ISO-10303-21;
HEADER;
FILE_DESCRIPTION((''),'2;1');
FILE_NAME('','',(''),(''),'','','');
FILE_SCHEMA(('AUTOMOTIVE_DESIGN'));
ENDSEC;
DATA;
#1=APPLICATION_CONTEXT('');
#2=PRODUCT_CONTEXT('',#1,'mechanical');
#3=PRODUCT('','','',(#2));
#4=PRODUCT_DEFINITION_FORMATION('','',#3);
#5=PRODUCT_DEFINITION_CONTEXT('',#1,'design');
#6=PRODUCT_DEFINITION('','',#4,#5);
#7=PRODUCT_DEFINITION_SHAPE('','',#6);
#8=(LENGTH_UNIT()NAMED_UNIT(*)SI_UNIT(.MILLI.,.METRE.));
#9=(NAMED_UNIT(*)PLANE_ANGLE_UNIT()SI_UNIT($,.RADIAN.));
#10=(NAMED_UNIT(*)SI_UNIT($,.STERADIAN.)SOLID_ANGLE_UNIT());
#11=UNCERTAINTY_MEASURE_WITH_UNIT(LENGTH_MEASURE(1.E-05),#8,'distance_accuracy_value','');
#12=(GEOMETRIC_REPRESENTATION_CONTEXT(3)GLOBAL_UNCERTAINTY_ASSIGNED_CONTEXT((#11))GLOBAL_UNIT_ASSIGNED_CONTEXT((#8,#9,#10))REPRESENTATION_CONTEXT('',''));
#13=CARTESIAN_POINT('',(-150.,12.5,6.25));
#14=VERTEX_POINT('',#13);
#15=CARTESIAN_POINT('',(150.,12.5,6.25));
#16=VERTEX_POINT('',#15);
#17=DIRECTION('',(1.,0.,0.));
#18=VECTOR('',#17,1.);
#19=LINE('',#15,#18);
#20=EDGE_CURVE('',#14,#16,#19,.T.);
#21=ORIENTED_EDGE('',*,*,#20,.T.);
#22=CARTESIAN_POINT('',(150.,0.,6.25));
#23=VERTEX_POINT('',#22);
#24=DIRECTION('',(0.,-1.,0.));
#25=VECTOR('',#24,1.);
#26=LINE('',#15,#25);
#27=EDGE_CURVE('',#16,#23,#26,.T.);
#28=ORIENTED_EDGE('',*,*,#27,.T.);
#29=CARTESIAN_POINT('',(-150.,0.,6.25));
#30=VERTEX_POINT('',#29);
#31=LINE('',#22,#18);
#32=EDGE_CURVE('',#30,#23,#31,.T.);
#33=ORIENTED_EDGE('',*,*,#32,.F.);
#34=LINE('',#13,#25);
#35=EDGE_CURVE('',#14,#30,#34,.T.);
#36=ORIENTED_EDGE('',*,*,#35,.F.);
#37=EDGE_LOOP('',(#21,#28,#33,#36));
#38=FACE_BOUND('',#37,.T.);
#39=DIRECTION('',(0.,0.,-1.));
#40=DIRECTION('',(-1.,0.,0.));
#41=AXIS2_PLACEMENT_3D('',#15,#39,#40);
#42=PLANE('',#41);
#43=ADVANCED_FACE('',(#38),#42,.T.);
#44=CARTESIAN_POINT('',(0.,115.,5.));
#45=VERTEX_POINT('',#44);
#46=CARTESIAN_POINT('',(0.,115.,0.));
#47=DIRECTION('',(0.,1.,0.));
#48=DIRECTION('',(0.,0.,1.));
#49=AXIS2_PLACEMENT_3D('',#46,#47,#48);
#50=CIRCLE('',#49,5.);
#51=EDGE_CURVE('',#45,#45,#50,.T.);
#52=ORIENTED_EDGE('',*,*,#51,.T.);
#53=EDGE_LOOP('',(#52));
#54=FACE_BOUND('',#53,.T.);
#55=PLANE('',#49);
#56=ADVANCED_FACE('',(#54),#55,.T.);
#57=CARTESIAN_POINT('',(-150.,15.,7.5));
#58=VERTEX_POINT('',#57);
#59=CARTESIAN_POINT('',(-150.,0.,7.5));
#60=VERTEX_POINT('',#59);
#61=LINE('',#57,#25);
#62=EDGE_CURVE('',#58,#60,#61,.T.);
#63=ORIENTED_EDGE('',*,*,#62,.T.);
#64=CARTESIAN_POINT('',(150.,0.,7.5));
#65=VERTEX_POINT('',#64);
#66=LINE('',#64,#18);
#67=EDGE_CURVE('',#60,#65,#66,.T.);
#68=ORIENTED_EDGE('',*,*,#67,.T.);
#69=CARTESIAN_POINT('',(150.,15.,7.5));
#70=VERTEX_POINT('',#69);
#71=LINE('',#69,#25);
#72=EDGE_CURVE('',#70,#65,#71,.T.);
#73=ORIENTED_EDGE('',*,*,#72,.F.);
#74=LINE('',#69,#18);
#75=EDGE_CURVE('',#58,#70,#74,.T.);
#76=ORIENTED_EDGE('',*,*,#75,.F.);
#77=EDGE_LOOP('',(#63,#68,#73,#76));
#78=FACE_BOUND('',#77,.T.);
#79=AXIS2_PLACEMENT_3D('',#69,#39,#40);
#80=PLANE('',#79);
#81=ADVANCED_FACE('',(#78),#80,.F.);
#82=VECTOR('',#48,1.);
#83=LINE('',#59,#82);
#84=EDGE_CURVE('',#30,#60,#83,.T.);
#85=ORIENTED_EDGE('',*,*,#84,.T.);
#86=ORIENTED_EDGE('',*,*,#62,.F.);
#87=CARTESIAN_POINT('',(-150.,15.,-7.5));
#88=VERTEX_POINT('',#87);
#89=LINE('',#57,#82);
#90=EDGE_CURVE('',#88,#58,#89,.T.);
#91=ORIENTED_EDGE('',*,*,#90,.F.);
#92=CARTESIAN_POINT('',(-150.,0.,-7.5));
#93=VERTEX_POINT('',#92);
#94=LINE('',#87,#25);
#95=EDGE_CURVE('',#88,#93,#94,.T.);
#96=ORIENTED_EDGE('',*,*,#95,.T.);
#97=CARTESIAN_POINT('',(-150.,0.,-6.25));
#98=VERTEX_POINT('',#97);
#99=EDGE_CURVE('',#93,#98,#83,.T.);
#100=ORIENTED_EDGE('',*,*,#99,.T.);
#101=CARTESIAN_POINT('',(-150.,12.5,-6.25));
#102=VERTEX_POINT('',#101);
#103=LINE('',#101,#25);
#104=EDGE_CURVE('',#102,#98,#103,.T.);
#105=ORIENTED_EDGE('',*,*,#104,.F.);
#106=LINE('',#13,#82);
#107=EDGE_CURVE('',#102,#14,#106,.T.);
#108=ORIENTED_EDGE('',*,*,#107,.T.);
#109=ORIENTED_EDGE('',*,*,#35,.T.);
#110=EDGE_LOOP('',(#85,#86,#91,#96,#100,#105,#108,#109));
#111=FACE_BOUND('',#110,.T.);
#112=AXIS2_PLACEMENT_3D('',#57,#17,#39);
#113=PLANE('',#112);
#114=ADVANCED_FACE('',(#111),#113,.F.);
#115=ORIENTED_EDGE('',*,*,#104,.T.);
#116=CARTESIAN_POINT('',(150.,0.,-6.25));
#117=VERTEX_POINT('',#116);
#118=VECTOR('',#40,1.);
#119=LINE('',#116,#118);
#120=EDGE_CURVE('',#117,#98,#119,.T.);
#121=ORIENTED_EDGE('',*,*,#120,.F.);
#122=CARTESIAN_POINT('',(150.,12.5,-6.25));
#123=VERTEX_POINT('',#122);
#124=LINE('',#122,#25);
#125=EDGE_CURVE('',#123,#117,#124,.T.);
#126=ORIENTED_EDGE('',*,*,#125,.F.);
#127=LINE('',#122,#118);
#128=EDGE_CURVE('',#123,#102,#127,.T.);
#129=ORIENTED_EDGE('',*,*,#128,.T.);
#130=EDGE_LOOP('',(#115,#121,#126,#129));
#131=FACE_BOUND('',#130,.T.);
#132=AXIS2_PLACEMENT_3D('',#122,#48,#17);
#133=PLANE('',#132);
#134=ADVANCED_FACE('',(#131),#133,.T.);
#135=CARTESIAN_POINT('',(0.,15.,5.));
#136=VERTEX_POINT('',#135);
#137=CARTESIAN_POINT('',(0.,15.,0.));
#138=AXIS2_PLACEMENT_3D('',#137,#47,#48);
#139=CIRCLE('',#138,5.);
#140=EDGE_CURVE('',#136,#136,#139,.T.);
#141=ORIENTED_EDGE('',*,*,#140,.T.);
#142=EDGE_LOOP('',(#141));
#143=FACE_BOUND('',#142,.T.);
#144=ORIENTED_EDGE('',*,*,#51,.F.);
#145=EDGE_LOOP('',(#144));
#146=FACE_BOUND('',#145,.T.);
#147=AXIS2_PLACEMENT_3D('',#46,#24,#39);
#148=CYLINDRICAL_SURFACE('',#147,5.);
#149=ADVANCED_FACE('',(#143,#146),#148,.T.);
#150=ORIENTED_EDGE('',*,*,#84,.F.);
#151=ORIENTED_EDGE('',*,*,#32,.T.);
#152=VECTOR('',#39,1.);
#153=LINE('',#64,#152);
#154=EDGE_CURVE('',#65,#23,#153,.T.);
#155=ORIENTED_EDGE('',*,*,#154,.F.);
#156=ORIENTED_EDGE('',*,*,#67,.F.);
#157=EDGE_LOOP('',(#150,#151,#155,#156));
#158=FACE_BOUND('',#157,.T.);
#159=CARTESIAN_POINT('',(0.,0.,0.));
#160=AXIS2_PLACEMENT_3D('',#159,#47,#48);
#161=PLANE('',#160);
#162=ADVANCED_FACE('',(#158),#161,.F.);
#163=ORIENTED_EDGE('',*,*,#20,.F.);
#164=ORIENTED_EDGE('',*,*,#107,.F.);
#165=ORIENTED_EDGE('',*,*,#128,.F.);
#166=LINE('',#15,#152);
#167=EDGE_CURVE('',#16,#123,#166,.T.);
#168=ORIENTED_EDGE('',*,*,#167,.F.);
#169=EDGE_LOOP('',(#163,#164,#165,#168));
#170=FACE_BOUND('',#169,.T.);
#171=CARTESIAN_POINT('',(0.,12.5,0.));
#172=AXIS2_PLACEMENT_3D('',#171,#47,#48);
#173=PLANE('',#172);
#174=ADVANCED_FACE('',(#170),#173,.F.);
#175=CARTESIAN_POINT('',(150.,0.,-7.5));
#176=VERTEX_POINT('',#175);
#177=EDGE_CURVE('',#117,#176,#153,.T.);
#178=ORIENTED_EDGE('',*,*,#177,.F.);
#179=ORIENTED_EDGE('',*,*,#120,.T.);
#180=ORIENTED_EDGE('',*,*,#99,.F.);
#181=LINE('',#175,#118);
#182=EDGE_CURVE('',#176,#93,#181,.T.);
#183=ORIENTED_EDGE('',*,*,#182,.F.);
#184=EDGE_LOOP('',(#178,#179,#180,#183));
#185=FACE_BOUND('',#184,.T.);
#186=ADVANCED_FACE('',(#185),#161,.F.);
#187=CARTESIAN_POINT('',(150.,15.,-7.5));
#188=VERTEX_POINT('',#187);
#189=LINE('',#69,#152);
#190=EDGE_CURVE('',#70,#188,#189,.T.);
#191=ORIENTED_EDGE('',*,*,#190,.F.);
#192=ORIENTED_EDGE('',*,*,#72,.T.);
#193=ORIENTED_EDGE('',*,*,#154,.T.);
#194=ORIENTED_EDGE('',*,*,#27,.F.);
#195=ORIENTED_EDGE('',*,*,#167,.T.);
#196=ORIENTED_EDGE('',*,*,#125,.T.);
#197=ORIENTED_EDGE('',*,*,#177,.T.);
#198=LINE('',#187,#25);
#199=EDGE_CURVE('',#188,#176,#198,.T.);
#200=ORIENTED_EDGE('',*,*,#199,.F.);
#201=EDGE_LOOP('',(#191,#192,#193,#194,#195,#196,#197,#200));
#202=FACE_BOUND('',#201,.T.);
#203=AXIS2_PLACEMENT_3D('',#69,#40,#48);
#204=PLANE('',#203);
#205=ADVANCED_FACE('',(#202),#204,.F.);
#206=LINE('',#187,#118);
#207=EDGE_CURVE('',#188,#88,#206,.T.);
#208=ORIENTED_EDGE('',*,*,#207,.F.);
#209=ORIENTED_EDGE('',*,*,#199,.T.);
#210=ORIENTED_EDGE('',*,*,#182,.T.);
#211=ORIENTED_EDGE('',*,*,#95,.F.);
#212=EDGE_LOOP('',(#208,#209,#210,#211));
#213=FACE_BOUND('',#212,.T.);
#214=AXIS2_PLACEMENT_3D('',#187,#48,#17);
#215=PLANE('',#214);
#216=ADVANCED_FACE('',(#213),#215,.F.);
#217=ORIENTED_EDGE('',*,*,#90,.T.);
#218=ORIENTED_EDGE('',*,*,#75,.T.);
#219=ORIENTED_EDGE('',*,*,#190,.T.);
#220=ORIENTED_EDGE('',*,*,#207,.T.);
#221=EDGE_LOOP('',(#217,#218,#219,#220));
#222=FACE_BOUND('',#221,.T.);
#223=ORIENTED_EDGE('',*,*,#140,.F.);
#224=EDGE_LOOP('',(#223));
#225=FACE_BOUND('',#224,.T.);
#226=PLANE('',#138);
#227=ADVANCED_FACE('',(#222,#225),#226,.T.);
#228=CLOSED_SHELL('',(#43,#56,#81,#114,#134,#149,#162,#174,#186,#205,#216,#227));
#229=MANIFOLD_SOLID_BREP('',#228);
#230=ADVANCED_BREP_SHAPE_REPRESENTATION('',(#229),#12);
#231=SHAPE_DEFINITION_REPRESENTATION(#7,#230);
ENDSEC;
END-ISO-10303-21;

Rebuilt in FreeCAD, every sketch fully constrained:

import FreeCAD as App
import Part
import Sketcher

V = App.Vector
Q = App.Units.Quantity

doc = App.newDocument("Part")
body = doc.addObject("PartDesign::Body", "Body")

sketch1 = body.newObject("Sketcher::SketchObject", "Sketch")
sketch1.AttachmentSupport = (doc.getObject("XZ_Plane"), [""])
sketch1.MapMode = "FlatFace"
sketch1.addGeometry([
    Part.LineSegment(V(-150, -7.5, 0), V(-150, 7.5, 0)),
    Part.LineSegment(V(-150, 7.5, 0), V(150, 7.5, 0)),
    Part.LineSegment(V(150, 7.5, 0), V(150, -7.5, 0)),
    Part.LineSegment(V(150, -7.5, 0), V(-150, -7.5, 0)),
], False)
sketch1.addConstraint([
    Sketcher.Constraint("Coincident", 0, 2, 1, 1),
    Sketcher.Constraint("Coincident", 1, 2, 2, 1),
    Sketcher.Constraint("Coincident", 2, 2, 3, 1),
    Sketcher.Constraint("Coincident", 3, 2, 0, 1),
    Sketcher.Constraint("Vertical", 0),
    Sketcher.Constraint("Horizontal", 1),
    Sketcher.Constraint("Vertical", 2),
    Sketcher.Constraint("Horizontal", 3),
    Sketcher.Constraint("Symmetric", 0, 2, 2, 2, -1, 1),
    Sketcher.Constraint("DistanceX", 1, 1, 1, 2, Q("300 mm")),
    Sketcher.Constraint("DistanceY", 0, 1, 0, 2, Q("15 mm")),
])
pad1 = body.newObject("PartDesign::Pad", "Pad")
pad1.Profile = sketch1
pad1.Length = 15
pad1.Reversed = True

sketch2 = body.newObject("Sketcher::SketchObject", "Sketch001")
sketch2.AttachmentSupport = (doc.getObject("XZ_Plane"), [""])
sketch2.MapMode = "FlatFace"
sketch2.addGeometry([
    Part.LineSegment(V(-150, -6.25, 0), V(-150, 6.25, 0)),
    Part.LineSegment(V(-150, 6.25, 0), V(150, 6.25, 0)),
    Part.LineSegment(V(150, 6.25, 0), V(150, -6.25, 0)),
    Part.LineSegment(V(150, -6.25, 0), V(-150, -6.25, 0)),
], False)
sketch2.addConstraint([
    Sketcher.Constraint("Coincident", 0, 2, 1, 1),
    Sketcher.Constraint("Coincident", 1, 2, 2, 1),
    Sketcher.Constraint("Coincident", 2, 2, 3, 1),
    Sketcher.Constraint("Coincident", 3, 2, 0, 1),
    Sketcher.Constraint("Vertical", 0),
    Sketcher.Constraint("Horizontal", 1),
    Sketcher.Constraint("Vertical", 2),
    Sketcher.Constraint("Horizontal", 3),
    Sketcher.Constraint("Symmetric", 0, 2, 2, 2, -1, 1),
    Sketcher.Constraint("DistanceX", 1, 1, 1, 2, Q("300 mm")),
    Sketcher.Constraint("DistanceY", 0, 1, 0, 2, Q("12.5 mm")),
])
pocket1 = body.newObject("PartDesign::Pocket", "Pocket")
pocket1.Profile = sketch2
pocket1.Length = 12.5

sketch3 = body.newObject("Sketcher::SketchObject", "Sketch002")
sketch3.AttachmentSupport = (doc.getObject("XZ_Plane"), [""])
sketch3.MapMode = "FlatFace"
sketch3.AttachmentOffset = App.Placement(V(0, 0, -15), App.Rotation())
sketch3.addGeometry(Part.Circle(V(0, 0, 0), V(0, 0, 1), 5), False)
sketch3.addConstraint([
    Sketcher.Constraint("Coincident", 0, 3, -1, 1),
    Sketcher.Constraint("Diameter", 0, Q("10 mm")),
])
pad2 = body.newObject("PartDesign::Pad", "Pad001")
pad2.Profile = sketch3
pad2.Length = 100
pad2.Reversed = True

doc.recompute()
